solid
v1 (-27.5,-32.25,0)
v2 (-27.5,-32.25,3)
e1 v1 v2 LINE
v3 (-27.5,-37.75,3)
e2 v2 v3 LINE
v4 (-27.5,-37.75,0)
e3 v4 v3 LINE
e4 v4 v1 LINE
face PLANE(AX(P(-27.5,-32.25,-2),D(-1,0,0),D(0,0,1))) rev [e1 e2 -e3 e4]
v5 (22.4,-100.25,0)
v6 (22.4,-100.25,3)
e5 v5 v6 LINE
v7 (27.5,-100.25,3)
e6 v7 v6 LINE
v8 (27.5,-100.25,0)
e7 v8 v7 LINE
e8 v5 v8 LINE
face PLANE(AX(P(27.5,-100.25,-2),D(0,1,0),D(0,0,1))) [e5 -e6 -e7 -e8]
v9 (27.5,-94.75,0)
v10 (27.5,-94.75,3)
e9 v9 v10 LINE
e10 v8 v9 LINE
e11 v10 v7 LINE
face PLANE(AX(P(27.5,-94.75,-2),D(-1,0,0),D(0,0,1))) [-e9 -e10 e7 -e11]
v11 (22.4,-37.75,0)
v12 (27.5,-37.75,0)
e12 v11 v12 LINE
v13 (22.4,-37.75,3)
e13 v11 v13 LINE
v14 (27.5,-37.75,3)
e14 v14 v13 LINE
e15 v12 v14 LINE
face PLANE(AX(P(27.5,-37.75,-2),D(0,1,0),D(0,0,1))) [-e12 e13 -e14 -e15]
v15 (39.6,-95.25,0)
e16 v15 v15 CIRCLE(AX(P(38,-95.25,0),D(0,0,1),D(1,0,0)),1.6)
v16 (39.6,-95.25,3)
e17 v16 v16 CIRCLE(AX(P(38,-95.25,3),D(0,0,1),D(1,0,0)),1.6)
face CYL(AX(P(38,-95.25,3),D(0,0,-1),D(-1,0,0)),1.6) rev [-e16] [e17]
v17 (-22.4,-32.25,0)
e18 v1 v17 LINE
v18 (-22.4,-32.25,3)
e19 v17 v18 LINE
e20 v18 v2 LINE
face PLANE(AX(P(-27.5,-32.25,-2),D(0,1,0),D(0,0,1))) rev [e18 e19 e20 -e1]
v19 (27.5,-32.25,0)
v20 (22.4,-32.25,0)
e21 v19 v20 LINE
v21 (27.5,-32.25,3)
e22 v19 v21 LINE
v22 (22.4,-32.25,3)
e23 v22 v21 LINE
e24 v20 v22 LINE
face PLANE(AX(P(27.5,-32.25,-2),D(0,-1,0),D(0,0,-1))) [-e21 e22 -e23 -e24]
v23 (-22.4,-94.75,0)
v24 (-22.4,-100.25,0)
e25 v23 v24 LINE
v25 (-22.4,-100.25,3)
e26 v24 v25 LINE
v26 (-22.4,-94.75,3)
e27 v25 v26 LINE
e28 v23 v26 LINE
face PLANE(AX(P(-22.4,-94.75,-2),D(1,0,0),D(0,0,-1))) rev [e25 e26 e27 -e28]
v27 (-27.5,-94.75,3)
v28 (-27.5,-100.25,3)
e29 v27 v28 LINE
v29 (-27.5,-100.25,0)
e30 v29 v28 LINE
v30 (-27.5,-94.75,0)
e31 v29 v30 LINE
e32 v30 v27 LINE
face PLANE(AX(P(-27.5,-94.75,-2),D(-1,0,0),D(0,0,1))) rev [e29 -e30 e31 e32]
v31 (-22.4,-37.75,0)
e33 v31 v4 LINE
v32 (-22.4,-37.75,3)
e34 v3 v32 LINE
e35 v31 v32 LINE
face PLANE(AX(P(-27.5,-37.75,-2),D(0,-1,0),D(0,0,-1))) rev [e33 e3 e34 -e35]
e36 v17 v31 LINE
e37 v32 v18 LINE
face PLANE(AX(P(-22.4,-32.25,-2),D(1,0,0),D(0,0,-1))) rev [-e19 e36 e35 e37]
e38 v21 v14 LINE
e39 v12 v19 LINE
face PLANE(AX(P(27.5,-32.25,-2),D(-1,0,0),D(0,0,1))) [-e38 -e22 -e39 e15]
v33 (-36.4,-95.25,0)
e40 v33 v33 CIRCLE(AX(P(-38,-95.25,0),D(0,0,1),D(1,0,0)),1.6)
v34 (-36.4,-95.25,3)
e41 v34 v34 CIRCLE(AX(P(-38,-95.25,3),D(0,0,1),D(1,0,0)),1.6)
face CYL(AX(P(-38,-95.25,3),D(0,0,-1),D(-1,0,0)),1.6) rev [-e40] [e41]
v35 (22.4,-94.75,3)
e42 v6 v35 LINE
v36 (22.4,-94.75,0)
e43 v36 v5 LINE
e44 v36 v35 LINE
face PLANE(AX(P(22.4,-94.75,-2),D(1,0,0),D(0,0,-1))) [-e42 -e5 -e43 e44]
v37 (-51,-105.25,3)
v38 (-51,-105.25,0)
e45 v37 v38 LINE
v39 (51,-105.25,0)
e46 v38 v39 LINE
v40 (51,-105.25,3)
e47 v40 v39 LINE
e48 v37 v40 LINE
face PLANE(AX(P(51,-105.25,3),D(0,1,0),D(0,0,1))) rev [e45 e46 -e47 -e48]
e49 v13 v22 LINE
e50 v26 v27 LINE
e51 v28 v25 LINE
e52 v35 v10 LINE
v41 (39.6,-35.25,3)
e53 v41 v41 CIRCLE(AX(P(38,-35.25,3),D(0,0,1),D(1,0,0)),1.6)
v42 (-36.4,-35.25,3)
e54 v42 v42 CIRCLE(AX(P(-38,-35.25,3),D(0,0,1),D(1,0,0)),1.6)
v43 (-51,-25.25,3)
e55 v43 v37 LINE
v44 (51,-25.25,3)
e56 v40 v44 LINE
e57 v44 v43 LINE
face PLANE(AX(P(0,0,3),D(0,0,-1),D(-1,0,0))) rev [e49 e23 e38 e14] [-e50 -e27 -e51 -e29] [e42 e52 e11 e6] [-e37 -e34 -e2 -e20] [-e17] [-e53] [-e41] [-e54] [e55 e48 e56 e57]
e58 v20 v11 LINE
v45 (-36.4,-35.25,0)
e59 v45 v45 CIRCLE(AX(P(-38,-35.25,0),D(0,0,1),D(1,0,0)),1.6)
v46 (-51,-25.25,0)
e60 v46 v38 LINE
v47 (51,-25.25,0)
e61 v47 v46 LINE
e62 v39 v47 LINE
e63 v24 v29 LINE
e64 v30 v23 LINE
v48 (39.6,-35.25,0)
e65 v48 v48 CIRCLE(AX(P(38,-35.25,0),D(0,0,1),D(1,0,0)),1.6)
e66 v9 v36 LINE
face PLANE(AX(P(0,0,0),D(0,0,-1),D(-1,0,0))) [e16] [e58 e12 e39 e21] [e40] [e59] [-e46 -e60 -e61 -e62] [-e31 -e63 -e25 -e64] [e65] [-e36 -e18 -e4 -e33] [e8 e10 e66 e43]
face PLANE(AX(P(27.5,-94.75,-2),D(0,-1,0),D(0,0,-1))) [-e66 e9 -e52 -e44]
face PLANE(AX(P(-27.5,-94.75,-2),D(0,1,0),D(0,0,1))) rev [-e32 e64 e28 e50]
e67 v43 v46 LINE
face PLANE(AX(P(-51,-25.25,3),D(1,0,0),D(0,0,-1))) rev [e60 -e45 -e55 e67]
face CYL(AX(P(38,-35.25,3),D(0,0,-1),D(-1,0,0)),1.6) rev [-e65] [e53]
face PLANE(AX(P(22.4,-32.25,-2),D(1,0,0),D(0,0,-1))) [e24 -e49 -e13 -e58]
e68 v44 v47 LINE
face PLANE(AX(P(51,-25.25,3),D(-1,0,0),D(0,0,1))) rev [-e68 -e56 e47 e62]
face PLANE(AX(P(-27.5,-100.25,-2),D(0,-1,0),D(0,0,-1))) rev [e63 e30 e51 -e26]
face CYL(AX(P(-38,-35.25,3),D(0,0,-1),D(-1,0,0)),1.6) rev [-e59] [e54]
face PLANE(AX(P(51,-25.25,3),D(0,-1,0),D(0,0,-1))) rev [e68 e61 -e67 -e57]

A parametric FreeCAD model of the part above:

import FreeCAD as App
import Part
import Sketcher

V = App.Vector
Q = App.Units.Quantity

doc = App.newDocument("Part")
params = doc.addObject("Spreadsheet::Sheet", "Params")
for row, (alias, value) in enumerate([
    ("sketch1_diameter", "3.2 mm"),
    ("sketch1_width", "102 mm"),
    ("sketch1_height", "80 mm"),
    ("pad1_length", "3 mm"),
    ("sketch2_width", "5.1 mm"),
    ("sketch2_height", "5.5 mm"),
    ("pocket1_length", "5 mm"),
    ("linearpattern_pitch", "62.5 mm"),
    ("sketch3_width", "5.1 mm"),
    ("sketch3_height", "5.5 mm"),
    ("pocket2_length", "5 mm"),
], start=1):
    params.set(f"A{row}", alias)
    params.set(f"B{row}", "=" + value)
    params.setAlias(f"B{row}", alias)

body = doc.addObject("PartDesign::Body", "Body")

sketch1 = doc.addObject("Sketcher::SketchObject", "Sketch")
body.addObject(sketch1)
sketch1.AttachmentSupport = (doc.XY_Plane, [""])
sketch1.MapMode = "FlatFace"
sketch1.addGeometry(Part.LineSegment(V(-51, -25.2, 0), V(-51, -105.2, 0)), False)
sketch1.addGeometry(Part.LineSegment(V(-51, -105.2, 0), V(51, -105.2, 0)), False)
sketch1.addGeometry(Part.LineSegment(V(51, -105.2, 0), V(51, -25.2, 0)), False)
sketch1.addGeometry(Part.LineSegment(V(51, -25.2, 0), V(-51, -25.2, 0)), False)
sketch1.addGeometry(Part.Circle(V(-38, -95.2, 0), V(0, 0, 1), 1.6), False)
sketch1.addGeometry(Part.Circle(V(38, -95.2, 0), V(0, 0, 1), 1.6), False)
sketch1.addGeometry(Part.Circle(V(-38, -35.2, 0), V(0, 0, 1), 1.6), False)
sketch1.addGeometry(Part.Circle(V(38, -35.2, 0), V(0, 0, 1), 1.6), False)
sketch1.addConstraint(Sketcher.Constraint("Coincident", 0, 2, 1, 1))
sketch1.addConstraint(Sketcher.Constraint("Coincident", 1, 2, 2, 1))
sketch1.addConstraint(Sketcher.Constraint("Coincident", 2, 2, 3, 1))
sketch1.addConstraint(Sketcher.Constraint("Coincident", 3, 2, 0, 1))
sketch1.addConstraint(Sketcher.Constraint("Vertical", 0))
sketch1.addConstraint(Sketcher.Constraint("Horizontal", 1))
sketch1.addConstraint(Sketcher.Constraint("Vertical", 2))
sketch1.addConstraint(Sketcher.Constraint("Horizontal", 3))
sketch1.addConstraint(Sketcher.Constraint("Equal", 4, 5))
sketch1.addConstraint(Sketcher.Constraint("Equal", 5, 6))
sketch1.addConstraint(Sketcher.Constraint("Equal", 6, 7))
sketch1.addConstraint(Sketcher.Constraint("Symmetric", 4, 3, 5, 3, -2))
sketch1.addConstraint(Sketcher.Constraint("Symmetric", 6, 3, 7, 3, -2))
sketch1.addConstraint(Sketcher.Constraint("Vertical", 4, 3, 6, 3))
sketch1.addConstraint(Sketcher.Constraint("Diameter", 4, Q("3.2 mm")))
sketch1.addConstraint(Sketcher.Constraint("DistanceX", 1, 1, 1, 2, Q("102 mm")))
sketch1.addConstraint(Sketcher.Constraint("DistanceY", 0, 2, 0, 1, Q("80 mm")))
sketch1.addConstraint(Sketcher.Constraint("DistanceX", 4, 3, -1, 1, Q("38 mm")))
sketch1.addConstraint(Sketcher.Constraint("DistanceX", 0, 2, -1, 1, Q("51 mm")))
sketch1.addConstraint(Sketcher.Constraint("DistanceY", 4, 3, 6, 3, Q("60 mm")))
sketch1.addConstraint(Sketcher.Constraint("DistanceY", 0, 2, 4, 3, Q("10 mm")))
sketch1.addConstraint(Sketcher.Constraint("DistanceY", 4, 3, -1, 1, Q("95.25 mm")))
sketch1.setExpression("Constraints[14]", "Params.sketch1_diameter")
sketch1.setExpression("Constraints[15]", "Params.sketch1_width")
sketch1.setExpression("Constraints[16]", "Params.sketch1_height")
pad1 = doc.addObject("PartDesign::Pad", "Pad")
body.addObject(pad1)
pad1.Profile = sketch1
pad1.setExpression("Length", "Params.pad1_length")

sketch2 = doc.addObject("Sketcher::SketchObject", "Sketch001")
body.addObject(sketch2)
sketch2.AttachmentSupport = (doc.XY_Plane, [""])
sketch2.MapMode = "FlatFace"
sketch2.AttachmentOffset = App.Placement(V(0, 0, 3), App.Rotation())
sketch2.addGeometry(Part.LineSegment(V(-27, -95, 0), V(-27, -100, 0)), False)
sketch2.addGeometry(Part.LineSegment(V(-27, -100, 0), V(-22, -100, 0)), False)
sketch2.addGeometry(Part.LineSegment(V(-22, -100, 0), V(-22, -95, 0)), False)
sketch2.addGeometry(Part.LineSegment(V(-22, -95, 0), V(-27, -95, 0)), False)
sketch2.addConstraint(Sketcher.Constraint("Coincident", 0, 2, 1, 1))
sketch2.addConstraint(Sketcher.Constraint("Coincident", 1, 2, 2, 1))
sketch2.addConstraint(Sketcher.Constraint("Coincident", 2, 2, 3, 1))
sketch2.addConstraint(Sketcher.Constraint("Coincident", 3, 2, 0, 1))
sketch2.addConstraint(Sketcher.Constraint("Vertical", 0))
sketch2.addConstraint(Sketcher.Constraint("Horizontal", 1))
sketch2.addConstraint(Sketcher.Constraint("Vertical", 2))
sketch2.addConstraint(Sketcher.Constraint("Horizontal", 3))
sketch2.addConstraint(Sketcher.Constraint("DistanceX", 1, 1, 1, 2, Q("5.1 mm")))
sketch2.addConstraint(Sketcher.Constraint("DistanceY", 0, 2, 0, 1, Q("5.5 mm")))
sketch2.addConstraint(Sketcher.Constraint("DistanceX", 0, 2, -1, 1, Q("27.5 mm")))
sketch2.addConstraint(Sketcher.Constraint("DistanceY", 0, 2, -1, 1, Q("100.25 mm")))
sketch2.setExpression("Constraints[8]", "Params.sketch2_width")
sketch2.setExpression("Constraints[9]", "Params.sketch2_height")
pocket1 = doc.addObject("PartDesign::Pocket", "Pocket")
body.addObject(pocket1)
pocket1.Profile = sketch2
pocket1.setExpression("Length", "Params.pocket1_length")
doc.recompute()

mirrored = doc.addObject("PartDesign::Mirrored", "Mirrored")
body.addObject(mirrored)
mirrored.Originals = [pocket1]
mirrored.MirrorPlane = (doc.YZ_Plane, [""])
body.Tip = mirrored
doc.recompute()

linearpattern = doc.addObject("PartDesign::LinearPattern", "LinearPattern")
body.addObject(linearpattern)
linearpattern.Originals = [pocket1]
linearpattern.Direction = (doc.Y_Axis, [""])
linearpattern.Mode = "offset"
linearpattern.setExpression("Offset", "Params.linearpattern_pitch")
linearpattern.Occurrences = 2
body.Tip = linearpattern

sketch3 = doc.addObject("Sketcher::SketchObject", "Sketch002")
body.addObject(sketch3)
sketch3.AttachmentSupport = (doc.XY_Plane, [""])
sketch3.MapMode = "FlatFace"
sketch3.AttachmentOffset = App.Placement(V(0, 0, 3), App.Rotation())
sketch3.addGeometry(Part.LineSegment(V(27, -38, 0), V(27, -32, 0)), False)
sketch3.addGeometry(Part.LineSegment(V(27, -32, 0), V(22, -32, 0)), False)
sketch3.addGeometry(Part.LineSegment(V(22, -32, 0), V(22, -38, 0)), False)
sketch3.addGeometry(Part.LineSegment(V(22, -38, 0), V(27, -38, 0)), False)
sketch3.addConstraint(Sketcher.Constraint("Coincident", 0, 2, 1, 1))
sketch3.addConstraint(Sketcher.Constraint("Coincident", 1, 2, 2, 1))
sketch3.addConstraint(Sketcher.Constraint("Coincident", 2, 2, 3, 1))
sketch3.addConstraint(Sketcher.Constraint("Coincident", 3, 2, 0, 1))
sketch3.addConstraint(Sketcher.Constraint("Vertical", 0))
sketch3.addConstraint(Sketcher.Constraint("Horizontal", 1))
sketch3.addConstraint(Sketcher.Constraint("Vertical", 2))
sketch3.addConstraint(Sketcher.Constraint("Horizontal", 3))
sketch3.addConstraint(Sketcher.Constraint("DistanceX", 1, 2, 1, 1, Q("5.1 mm")))
sketch3.addConstraint(Sketcher.Constraint("DistanceY", 0, 1, 0, 2, Q("5.5 mm")))
sketch3.addConstraint(Sketcher.Constraint("DistanceX", -1, 1, 0, 2, Q("27.5 mm")))
sketch3.addConstraint(Sketcher.Constraint("DistanceY", 0, 2, -1, 1, Q("32.25 mm")))
sketch3.setExpression("Constraints[8]", "Params.sketch3_width")
sketch3.setExpression("Constraints[9]", "Params.sketch3_height")
pocket2 = doc.addObject("PartDesign::Pocket", "Pocket001")
body.addObject(pocket2)
pocket2.Profile = sketch3
pocket2.setExpression("Length", "Params.pocket2_length")

doc.recompute()
